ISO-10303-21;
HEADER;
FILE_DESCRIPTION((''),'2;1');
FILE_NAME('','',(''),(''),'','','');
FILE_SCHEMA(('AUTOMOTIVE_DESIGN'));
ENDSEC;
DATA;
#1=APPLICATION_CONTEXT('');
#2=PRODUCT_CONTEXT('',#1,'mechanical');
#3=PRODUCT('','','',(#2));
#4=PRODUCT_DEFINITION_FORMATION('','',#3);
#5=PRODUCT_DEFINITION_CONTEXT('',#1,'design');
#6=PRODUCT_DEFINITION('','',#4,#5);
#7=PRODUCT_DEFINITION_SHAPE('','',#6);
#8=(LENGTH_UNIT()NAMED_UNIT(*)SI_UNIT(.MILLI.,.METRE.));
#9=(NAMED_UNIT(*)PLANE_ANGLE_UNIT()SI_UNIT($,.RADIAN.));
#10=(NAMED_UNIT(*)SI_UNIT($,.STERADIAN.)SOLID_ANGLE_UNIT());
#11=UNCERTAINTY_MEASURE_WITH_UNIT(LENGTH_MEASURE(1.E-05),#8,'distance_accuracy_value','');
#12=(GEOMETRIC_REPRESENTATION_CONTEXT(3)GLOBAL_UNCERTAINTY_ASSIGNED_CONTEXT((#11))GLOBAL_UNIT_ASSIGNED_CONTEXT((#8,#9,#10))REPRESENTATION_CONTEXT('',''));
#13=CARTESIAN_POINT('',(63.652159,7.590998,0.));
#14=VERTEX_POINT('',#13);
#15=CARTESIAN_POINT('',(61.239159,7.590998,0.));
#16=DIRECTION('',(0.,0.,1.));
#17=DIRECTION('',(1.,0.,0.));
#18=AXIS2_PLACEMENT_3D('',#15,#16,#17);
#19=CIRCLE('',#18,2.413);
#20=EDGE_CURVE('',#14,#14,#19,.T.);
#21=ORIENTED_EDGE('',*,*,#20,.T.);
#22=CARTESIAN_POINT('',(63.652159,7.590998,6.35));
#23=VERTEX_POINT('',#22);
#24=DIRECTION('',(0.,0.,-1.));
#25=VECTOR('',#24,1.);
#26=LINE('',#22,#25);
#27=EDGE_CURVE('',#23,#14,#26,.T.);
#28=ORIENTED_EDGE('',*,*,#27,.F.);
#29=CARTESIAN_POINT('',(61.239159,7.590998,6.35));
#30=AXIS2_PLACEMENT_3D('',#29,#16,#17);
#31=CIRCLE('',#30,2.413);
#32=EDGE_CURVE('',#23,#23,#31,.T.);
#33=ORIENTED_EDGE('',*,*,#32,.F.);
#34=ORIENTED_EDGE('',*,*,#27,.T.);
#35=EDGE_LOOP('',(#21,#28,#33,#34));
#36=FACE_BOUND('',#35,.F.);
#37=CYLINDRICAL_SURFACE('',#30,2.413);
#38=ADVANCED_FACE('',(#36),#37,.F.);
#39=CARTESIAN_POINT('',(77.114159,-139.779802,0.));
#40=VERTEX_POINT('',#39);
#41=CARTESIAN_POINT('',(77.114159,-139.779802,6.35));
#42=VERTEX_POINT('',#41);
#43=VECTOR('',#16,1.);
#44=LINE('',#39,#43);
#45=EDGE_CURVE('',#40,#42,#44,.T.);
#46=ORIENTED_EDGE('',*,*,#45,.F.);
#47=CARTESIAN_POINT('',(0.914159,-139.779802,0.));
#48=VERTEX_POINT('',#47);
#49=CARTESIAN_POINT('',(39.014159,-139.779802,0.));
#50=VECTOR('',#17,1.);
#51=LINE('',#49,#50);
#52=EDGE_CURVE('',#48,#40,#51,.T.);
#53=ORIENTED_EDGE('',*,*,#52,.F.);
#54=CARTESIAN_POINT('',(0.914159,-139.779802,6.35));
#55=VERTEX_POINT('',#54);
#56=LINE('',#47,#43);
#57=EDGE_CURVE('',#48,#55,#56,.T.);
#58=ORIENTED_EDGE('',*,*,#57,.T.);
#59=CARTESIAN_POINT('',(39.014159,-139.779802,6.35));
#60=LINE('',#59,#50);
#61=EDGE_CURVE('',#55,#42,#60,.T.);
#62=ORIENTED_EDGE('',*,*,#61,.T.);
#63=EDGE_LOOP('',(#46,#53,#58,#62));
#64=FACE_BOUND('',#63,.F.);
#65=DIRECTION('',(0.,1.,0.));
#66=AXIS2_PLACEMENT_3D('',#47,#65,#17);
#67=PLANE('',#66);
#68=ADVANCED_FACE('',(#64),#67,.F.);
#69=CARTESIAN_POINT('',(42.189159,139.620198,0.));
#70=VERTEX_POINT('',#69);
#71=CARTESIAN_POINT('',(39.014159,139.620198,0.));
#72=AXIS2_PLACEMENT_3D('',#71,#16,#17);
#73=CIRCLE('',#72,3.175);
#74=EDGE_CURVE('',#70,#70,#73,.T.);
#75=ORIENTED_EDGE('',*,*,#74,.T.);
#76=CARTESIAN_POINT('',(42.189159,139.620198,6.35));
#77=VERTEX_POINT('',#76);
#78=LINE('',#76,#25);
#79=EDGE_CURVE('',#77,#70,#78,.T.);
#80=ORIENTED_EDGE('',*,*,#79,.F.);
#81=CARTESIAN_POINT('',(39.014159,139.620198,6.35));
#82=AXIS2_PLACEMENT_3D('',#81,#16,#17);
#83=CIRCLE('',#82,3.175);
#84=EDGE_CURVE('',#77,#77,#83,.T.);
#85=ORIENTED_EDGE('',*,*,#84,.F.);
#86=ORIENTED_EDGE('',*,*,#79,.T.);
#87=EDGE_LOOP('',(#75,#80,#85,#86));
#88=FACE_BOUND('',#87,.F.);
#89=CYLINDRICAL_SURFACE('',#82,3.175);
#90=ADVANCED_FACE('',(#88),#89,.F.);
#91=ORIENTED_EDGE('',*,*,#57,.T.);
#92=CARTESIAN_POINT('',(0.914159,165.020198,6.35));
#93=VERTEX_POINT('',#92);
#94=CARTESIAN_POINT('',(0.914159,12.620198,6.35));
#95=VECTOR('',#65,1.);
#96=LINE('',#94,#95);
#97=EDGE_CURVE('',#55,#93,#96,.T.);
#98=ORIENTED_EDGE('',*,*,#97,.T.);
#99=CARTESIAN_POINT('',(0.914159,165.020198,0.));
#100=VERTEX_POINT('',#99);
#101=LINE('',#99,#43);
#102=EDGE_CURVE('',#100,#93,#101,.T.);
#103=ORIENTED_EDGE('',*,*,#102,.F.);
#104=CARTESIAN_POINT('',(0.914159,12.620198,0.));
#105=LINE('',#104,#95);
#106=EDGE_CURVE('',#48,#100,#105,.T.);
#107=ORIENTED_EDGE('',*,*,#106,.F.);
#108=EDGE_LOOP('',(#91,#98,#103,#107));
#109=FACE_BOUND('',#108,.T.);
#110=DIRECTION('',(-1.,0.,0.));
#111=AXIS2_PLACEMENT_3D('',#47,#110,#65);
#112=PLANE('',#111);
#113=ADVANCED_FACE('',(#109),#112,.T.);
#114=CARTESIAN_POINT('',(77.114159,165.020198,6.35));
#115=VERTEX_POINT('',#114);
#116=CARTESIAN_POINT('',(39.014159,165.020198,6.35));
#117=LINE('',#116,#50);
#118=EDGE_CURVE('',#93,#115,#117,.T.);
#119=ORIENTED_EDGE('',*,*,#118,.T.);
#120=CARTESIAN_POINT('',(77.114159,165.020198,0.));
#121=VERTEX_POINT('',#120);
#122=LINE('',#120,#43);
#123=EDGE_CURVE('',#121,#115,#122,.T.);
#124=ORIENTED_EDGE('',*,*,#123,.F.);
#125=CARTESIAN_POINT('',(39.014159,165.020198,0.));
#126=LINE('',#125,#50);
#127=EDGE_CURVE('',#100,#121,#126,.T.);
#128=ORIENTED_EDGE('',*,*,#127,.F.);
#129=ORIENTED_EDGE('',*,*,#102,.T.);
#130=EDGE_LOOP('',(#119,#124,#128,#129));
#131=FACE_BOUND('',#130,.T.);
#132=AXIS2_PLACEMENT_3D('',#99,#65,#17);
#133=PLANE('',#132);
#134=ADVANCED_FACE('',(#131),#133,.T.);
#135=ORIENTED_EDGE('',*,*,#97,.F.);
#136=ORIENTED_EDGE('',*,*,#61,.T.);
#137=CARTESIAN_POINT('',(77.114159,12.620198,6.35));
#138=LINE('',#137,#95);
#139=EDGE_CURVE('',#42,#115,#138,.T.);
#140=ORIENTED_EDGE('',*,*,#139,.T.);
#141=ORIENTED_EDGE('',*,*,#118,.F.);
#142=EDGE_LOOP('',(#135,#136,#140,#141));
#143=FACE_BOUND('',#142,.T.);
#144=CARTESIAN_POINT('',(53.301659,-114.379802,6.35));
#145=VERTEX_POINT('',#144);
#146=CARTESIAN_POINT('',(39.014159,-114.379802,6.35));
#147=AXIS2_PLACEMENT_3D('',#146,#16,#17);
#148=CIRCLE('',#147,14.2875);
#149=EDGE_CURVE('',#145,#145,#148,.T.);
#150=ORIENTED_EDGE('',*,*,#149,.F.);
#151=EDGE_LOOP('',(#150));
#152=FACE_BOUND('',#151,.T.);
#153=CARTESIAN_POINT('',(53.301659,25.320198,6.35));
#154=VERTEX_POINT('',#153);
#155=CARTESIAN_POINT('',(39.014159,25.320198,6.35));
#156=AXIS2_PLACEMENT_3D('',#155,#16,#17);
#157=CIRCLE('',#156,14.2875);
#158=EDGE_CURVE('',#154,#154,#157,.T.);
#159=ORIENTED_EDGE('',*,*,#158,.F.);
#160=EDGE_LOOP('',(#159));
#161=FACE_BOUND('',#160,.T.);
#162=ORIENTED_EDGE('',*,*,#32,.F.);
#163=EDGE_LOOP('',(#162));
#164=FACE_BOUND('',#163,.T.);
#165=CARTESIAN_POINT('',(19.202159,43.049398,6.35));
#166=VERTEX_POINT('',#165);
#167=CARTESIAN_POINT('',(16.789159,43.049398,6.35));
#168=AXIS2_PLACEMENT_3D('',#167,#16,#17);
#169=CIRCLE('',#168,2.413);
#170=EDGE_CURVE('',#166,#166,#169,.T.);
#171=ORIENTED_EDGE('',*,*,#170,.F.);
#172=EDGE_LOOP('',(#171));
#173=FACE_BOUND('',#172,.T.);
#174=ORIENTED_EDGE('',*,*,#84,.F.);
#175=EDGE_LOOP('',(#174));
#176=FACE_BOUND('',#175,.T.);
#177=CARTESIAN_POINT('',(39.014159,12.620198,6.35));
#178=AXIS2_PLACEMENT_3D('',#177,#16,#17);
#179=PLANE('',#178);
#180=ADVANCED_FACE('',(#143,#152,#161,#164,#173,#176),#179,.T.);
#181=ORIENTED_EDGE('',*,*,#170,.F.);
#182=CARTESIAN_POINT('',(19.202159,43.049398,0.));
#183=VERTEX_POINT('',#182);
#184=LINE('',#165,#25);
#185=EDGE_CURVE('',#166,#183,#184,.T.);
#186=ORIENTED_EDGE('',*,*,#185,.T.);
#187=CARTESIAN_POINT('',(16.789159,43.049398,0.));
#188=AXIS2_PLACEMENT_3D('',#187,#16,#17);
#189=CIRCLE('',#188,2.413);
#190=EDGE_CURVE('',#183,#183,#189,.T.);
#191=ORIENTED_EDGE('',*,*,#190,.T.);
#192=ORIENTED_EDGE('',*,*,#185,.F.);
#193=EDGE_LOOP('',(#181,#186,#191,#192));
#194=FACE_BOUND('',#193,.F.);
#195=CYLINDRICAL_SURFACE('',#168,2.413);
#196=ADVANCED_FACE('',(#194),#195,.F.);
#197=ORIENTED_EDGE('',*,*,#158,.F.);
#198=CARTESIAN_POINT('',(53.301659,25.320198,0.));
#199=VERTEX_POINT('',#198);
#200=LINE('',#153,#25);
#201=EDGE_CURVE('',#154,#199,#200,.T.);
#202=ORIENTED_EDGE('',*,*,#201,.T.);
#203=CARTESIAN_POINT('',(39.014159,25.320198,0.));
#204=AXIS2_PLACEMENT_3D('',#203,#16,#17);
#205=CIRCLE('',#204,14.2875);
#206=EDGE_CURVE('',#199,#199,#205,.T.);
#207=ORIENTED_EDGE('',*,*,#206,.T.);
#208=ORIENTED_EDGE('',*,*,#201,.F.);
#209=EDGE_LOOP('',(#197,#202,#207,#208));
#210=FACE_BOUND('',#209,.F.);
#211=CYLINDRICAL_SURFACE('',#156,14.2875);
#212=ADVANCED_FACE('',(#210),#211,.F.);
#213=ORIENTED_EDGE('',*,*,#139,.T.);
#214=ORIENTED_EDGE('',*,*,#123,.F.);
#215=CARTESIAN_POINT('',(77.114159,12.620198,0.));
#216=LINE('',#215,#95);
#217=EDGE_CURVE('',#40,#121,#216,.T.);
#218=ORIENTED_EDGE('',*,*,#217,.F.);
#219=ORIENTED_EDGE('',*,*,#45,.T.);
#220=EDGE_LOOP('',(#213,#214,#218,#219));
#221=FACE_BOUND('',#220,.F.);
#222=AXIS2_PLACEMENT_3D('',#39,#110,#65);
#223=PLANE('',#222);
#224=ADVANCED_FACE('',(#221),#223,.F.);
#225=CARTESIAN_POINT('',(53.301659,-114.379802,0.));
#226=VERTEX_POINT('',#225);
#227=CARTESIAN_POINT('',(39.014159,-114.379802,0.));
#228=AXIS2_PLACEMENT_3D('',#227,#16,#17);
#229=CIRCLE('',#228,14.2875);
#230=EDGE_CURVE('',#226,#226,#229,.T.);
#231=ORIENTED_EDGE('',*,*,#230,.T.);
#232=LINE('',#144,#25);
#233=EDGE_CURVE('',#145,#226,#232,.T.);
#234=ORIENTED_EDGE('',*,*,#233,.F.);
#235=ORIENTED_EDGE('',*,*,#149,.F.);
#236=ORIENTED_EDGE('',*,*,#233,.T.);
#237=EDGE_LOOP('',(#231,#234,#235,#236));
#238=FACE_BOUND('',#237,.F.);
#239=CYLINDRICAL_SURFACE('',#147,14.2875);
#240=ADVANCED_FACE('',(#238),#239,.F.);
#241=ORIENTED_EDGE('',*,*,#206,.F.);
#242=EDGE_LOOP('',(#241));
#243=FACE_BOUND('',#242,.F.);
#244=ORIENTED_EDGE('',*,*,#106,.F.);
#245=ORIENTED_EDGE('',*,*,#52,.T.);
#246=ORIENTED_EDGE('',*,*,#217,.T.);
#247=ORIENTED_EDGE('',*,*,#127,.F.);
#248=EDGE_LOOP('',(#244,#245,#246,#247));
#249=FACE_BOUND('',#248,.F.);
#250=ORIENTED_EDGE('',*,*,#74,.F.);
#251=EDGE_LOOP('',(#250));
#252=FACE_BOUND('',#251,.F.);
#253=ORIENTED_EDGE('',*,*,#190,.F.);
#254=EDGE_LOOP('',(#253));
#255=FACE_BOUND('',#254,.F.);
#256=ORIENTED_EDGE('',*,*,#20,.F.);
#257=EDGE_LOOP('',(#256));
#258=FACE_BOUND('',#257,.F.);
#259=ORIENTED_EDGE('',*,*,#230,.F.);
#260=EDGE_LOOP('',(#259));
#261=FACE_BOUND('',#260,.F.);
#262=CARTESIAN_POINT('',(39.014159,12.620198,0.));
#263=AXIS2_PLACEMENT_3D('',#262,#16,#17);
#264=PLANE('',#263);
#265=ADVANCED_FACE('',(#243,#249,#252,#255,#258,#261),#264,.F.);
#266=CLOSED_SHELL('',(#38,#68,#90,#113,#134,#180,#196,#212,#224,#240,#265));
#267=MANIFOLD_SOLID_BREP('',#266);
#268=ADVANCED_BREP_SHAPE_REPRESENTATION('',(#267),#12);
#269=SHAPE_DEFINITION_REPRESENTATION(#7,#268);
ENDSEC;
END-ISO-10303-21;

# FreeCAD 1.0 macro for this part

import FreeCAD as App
import Part
import Sketcher
Q = App.Units.Quantity


def add_polygon(sketch, points):
    """Adds a closed chain of lines whose ends are joined by coincident constraints."""
    first, n = sketch.GeometryCount, len(points)
    for a, b in zip(points, points[1:] + points[:1]):
        sketch.addGeometry(Part.LineSegment(App.Vector(*a, 0), App.Vector(*b, 0)), False)
    for i in range(n):
        sketch.addConstraint(Sketcher.Constraint("Coincident", first + i, 2, first + (i + 1) % n, 1))

doc = App.newDocument("Part")
body = doc.addObject("PartDesign::Body", "Body")

sketch1 = body.newObject("Sketcher::SketchObject", "Sketch")
sketch1.AttachmentSupport = (doc.getObject("XY_Plane"), [""])
sketch1.MapMode = "FlatFace"
add_polygon(sketch1, [(0.914159, 165.020198), (0.914159, -139.779802), (77.114159, -139.779802), (77.114159, 165.020198)])
sketch1.addConstraint([
    Sketcher.Constraint("Vertical", 0),
    Sketcher.Constraint("Horizontal", 1),
    Sketcher.Constraint("Vertical", 2),
    Sketcher.Constraint("Horizontal", 3),
    Sketcher.Constraint("DistanceX", 1, 1, 1, 2, Q("3 in")),
    Sketcher.Constraint("DistanceY", 0, 2, 0, 1, Q("12 in")),
    Sketcher.Constraint("DistanceY", 0, 2, -1, 1, Q("139.779802 mm")),
    Sketcher.Constraint("DistanceX", -1, 1, 0, 2, Q("0.914159 mm")),
])
pad1 = body.newObject("PartDesign::Pad", "Pad")
pad1.Profile = sketch1
pad1.Length = Q("0.25 in")

sketch2 = body.newObject("Sketcher::SketchObject", "Sketch001")
sketch2.AttachmentSupport = (doc.getObject("XY_Plane"), [""])
sketch2.MapMode = "FlatFace"
sketch2.AttachmentOffset = App.Placement(App.Vector(0, 0, 0.25 * 25.4), App.Rotation())
sketch2.addGeometry(Part.Circle(App.Vector(39.014159, 139.620198, 0), App.Vector(0, 0, 1), 3.175), False)
sketch2.addConstraint([
    Sketcher.Constraint("Diameter", 0, Q("0.25 in")),
    Sketcher.Constraint("DistanceX", -1, 1, 0, 3, Q("39.014159 mm")),
    Sketcher.Constraint("DistanceY", -1, 1, 0, 3, Q("139.620198 mm")),
])
pocket1 = body.newObject("PartDesign::Pocket", "Pocket")
pocket1.Profile = sketch2
pocket1.Length = Q("0.25 in")

sketch3 = body.newObject("Sketcher::SketchObject", "Sketch002")
sketch3.AttachmentSupport = (doc.getObject("XY_Plane"), [""])
sketch3.MapMode = "FlatFace"
sketch3.AttachmentOffset = App.Placement(App.Vector(0, 0, 0.25 * 25.4), App.Rotation())
sketch3.addGeometry(Part.Circle(App.Vector(39.014159, -114.379802, 0), App.Vector(0, 0, 1), 14.2875), False)
sketch3.addConstraint([
    Sketcher.Constraint("Diameter", 0, Q("1.125 in")),
    Sketcher.Constraint("DistanceY", 0, 3, -1, 1, Q("114.379802 mm")),
    Sketcher.Constraint("DistanceX", -1, 1, 0, 3, Q("39.014159 mm")),
])
pocket2 = body.newObject("PartDesign::Pocket", "Pocket001")
pocket2.Profile = sketch3
pocket2.Length = Q("0.25 in")

sketch4 = body.newObject("Sketcher::SketchObject", "Sketch003")
sketch4.AttachmentSupport = (doc.getObject("XY_Plane"), [""])
sketch4.MapMode = "FlatFace"
sketch4.AttachmentOffset = App.Placement(App.Vector(0, 0, 0.25 * 25.4), App.Rotation())
sketch4.addGeometry(Part.Circle(App.Vector(39.014159, 25.320198, 0), App.Vector(0, 0, 1), 14.2875), False)
sketch4.addConstraint([
    Sketcher.Constraint("Diameter", 0, Q("1.125 in")),
    Sketcher.Constraint("DistanceY", -1, 1, 0, 3, Q("25.320198 mm")),
    Sketcher.Constraint("DistanceX", -1, 1, 0, 3, Q("39.014159 mm")),
])
pocket3 = body.newObject("PartDesign::Pocket", "Pocket002")
pocket3.Profile = sketch4
pocket3.Length = Q("0.25 in")

sketch5 = body.newObject("Sketcher::SketchObject", "Sketch004")
sketch5.AttachmentSupport = (doc.getObject("XY_Plane"), [""])
sketch5.MapMode = "FlatFace"
sketch5.AttachmentOffset = App.Placement(App.Vector(0, 0, 0.25 * 25.4), App.Rotation())
sketch5.addGeometry(Part.Circle(App.Vector(61.239159, 7.590998, 0), App.Vector(0, 0, 1), 2.413), False)
sketch5.addConstraint([
    Sketcher.Constraint("Diameter", 0, Q("0.19 in")),
    Sketcher.Constraint("DistanceX", -1, 1, 0, 3, Q("61.239159 mm")),
    Sketcher.Constraint("DistanceY", -1, 1, 0, 3, Q("7.590998 mm")),
])
pocket4 = body.newObject("PartDesign::Pocket", "Pocket003")
pocket4.Profile = sketch5
pocket4.Length = Q("0.25 in")

sketch6 = body.newObject("Sketcher::SketchObject", "Sketch005")
sketch6.AttachmentSupport = (doc.getObject("XY_Plane"), [""])
sketch6.MapMode = "FlatFace"
sketch6.AttachmentOffset = App.Placement(App.Vector(0, 0, 0.25 * 25.4), App.Rotation())
sketch6.addGeometry(Part.Circle(App.Vector(16.789159, 43.049398, 0), App.Vector(0, 0, 1), 2.413), False)
sketch6.addConstraint([
    Sketcher.Constraint("Diameter", 0, Q("0.19 in")),
    Sketcher.Constraint("DistanceX", -1, 1, 0, 3, Q("16.789159 mm")),
    Sketcher.Constraint("DistanceY", -1, 1, 0, 3, Q("43.049398 mm")),
])
pocket5 = body.newObject("PartDesign::Pocket", "Pocket004")
pocket5.Profile = sketch6
pocket5.Length = Q("0.25 in")

doc.recompute()
